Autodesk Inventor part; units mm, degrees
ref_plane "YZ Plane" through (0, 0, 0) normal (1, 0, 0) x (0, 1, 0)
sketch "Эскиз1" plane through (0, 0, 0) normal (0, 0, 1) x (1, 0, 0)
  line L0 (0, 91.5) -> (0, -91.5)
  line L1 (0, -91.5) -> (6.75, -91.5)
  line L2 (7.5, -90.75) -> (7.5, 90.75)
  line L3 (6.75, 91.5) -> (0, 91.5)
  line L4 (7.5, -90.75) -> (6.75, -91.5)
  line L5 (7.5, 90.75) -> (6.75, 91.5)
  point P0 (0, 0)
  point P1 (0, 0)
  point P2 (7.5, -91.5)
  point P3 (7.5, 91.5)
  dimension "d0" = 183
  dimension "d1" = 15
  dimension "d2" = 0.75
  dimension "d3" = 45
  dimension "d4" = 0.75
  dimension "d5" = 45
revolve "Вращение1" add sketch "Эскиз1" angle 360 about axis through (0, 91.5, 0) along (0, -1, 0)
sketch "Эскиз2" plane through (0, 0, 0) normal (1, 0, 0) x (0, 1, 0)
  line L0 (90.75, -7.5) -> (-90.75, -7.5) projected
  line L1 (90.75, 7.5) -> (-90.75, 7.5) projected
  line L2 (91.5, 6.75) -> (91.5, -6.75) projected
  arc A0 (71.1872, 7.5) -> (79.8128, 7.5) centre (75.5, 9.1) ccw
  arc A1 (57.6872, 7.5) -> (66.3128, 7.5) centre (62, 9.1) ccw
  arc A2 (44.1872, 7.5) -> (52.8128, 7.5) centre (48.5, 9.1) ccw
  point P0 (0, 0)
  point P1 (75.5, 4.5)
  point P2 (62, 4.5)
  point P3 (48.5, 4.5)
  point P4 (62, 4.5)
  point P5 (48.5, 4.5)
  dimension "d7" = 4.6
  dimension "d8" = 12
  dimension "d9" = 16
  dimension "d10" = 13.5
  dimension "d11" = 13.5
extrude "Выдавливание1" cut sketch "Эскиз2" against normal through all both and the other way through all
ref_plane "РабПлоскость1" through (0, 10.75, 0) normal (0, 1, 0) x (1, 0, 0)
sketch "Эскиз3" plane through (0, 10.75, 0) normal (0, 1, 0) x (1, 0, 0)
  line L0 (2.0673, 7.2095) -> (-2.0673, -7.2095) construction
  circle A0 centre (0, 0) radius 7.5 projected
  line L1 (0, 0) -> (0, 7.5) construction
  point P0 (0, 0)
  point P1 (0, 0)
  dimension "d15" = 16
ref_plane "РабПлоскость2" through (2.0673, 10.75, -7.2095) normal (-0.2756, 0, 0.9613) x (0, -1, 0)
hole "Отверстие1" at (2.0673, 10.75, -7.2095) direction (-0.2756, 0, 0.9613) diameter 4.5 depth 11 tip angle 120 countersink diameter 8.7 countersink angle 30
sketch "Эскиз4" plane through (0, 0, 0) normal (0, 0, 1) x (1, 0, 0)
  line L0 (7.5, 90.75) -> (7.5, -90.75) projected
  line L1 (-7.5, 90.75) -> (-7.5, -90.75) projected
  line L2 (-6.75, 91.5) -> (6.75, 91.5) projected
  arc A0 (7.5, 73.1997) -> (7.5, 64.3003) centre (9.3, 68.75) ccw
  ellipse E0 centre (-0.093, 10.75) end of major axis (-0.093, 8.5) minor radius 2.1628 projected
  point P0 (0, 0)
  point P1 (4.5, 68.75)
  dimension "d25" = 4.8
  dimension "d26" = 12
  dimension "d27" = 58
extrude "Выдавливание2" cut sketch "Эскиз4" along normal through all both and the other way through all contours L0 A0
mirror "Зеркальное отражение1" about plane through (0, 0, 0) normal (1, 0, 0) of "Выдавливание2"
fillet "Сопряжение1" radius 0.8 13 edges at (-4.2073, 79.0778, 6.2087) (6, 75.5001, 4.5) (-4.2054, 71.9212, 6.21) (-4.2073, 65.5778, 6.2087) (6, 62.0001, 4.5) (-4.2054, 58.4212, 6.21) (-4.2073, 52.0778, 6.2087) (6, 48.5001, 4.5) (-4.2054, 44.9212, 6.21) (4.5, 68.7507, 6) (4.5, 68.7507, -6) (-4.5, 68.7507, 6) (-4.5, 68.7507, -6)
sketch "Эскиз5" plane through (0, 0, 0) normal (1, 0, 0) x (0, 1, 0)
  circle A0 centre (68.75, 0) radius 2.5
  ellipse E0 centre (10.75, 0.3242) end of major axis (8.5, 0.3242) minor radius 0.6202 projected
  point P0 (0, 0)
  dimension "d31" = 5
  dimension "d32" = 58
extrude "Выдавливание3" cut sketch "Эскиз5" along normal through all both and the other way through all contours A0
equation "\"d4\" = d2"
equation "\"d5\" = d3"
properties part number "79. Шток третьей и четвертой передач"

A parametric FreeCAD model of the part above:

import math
import FreeCAD as App
import Part
import Sketcher

V = App.Vector


def edges_at(feature, points):
    """Names of the edges that pass closest to the given points."""
    edges = feature.Shape.Edges
    near = lambda p: min(range(len(edges)), key=lambda i: edges[i].distToShape(Part.Vertex(*p))[0])
    return sorted({f"Edge{near(p) + 1}" for p in points})

doc = App.newDocument("Part")
body = doc.addObject("PartDesign::Body", "Body")

sketch1 = body.newObject("Sketcher::SketchObject", "Sketch")
sketch1.AttachmentSupport = (doc.getObject("XY_Plane"), [""])
sketch1.MapMode = "FlatFace"
sketch1.addGeometry(Part.LineSegment(V(6.75, 91.5, 0), V(0, 91.5, 0)), False)
sketch1.addGeometry(Part.LineSegment(V(0, 91.5, 0), V(0, -91.5, 0)), False)
sketch1.addGeometry(Part.LineSegment(V(0, -91.5, 0), V(6.75, -91.5, 0)), False)
sketch1.addGeometry(Part.LineSegment(V(6.75, -91.5, 0), V(7.5, -90.75, 0)), False)
sketch1.addGeometry(Part.LineSegment(V(7.5, -90.75, 0), V(7.5, 90.75, 0)), False)
sketch1.addGeometry(Part.LineSegment(V(7.5, 90.75, 0), V(6.75, 91.5, 0)), False)
sketch1.addConstraint(Sketcher.Constraint("Coincident", 0, 2, 1, 1))
sketch1.addConstraint(Sketcher.Constraint("Coincident", 1, 2, 2, 1))
sketch1.addConstraint(Sketcher.Constraint("Coincident", 2, 2, 3, 1))
sketch1.addConstraint(Sketcher.Constraint("Coincident", 3, 2, 4, 1))
sketch1.addConstraint(Sketcher.Constraint("Coincident", 4, 2, 5, 1))
sketch1.addConstraint(Sketcher.Constraint("Coincident", 5, 2, 0, 1))
sketch1.addConstraint(Sketcher.Constraint("Horizontal", 0))
sketch1.addConstraint(Sketcher.Constraint("Vertical", 1))
sketch1.addConstraint(Sketcher.Constraint("Horizontal", 2))
sketch1.addConstraint(Sketcher.Constraint("Vertical", 4))
sketch1.addConstraint(Sketcher.Constraint("Symmetric", 0, 2, 1, 2, -1, 1))
sketch1.addConstraint(Sketcher.Constraint("Perpendicular", 3, 5))
sketch1.addConstraint(Sketcher.Constraint("Vertical", 2, 2, 5, 2))
sketch1.addConstraint(Sketcher.Constraint("Equal", 3, 5))
sketch1.addConstraint(Sketcher.Constraint("DistanceY", 1, 2, 1, 1, 183.0))
sketch1.addConstraint(Sketcher.Constraint("DistanceX", 2, 2, 3, 2, 0.75))
sketch1.addConstraint(Sketcher.Constraint("DistanceX", 0, 2, 0, 1, 6.75))
revolution = body.newObject("PartDesign::Revolution", "Revolution")
revolution.Profile = sketch1
revolution.ReferenceAxis = (sketch1, ["V_Axis"])
revolution.Angle = 360

sketch2 = body.newObject("Sketcher::SketchObject", "Sketch001")
sketch2.AttachmentSupport = (doc.getObject("YZ_Plane"), [""])
sketch2.MapMode = "FlatFace"
sketch2.addGeometry(Part.ArcOfCircle(Part.Circle(V(75.5, 9.1, 0), V(0, 0, 1), 4.600027), math.radians(-159.645716), math.radians(-20.354284)), False)
sketch2.addGeometry(Part.LineSegment(V(79.8128, 7.5, 0), V(71.1872, 7.5, 0)), False)
sketch2.addGeometry(Part.ArcOfCircle(Part.Circle(V(48.5, 9.1, 0), V(0, 0, 1), 4.600027), math.radians(-159.645716), math.radians(-20.354284)), False)
sketch2.addGeometry(Part.LineSegment(V(52.8128, 7.5, 0), V(44.1872, 7.5, 0)), False)
sketch2.addGeometry(Part.ArcOfCircle(Part.Circle(V(62, 9.1, 0), V(0, 0, 1), 4.600027), math.radians(-159.645716), math.radians(-20.354284)), False)
sketch2.addGeometry(Part.LineSegment(V(66.3128, 7.5, 0), V(57.6872, 7.5, 0)), False)
sketch2.addConstraint(Sketcher.Constraint("Coincident", 0, 1, 1, 2))
sketch2.addConstraint(Sketcher.Constraint("Coincident", 1, 1, 0, 2))
sketch2.addConstraint(Sketcher.Constraint("Coincident", 2, 1, 3, 2))
sketch2.addConstraint(Sketcher.Constraint("Coincident", 3, 1, 2, 2))
sketch2.addConstraint(Sketcher.Constraint("Coincident", 4, 1, 5, 2))
sketch2.addConstraint(Sketcher.Constraint("Coincident", 5, 1, 4, 2))
sketch2.addConstraint(Sketcher.Constraint("Horizontal", 1))
sketch2.addConstraint(Sketcher.Constraint("Horizontal", 3))
sketch2.addConstraint(Sketcher.Constraint("Horizontal", 5))
sketch2.addConstraint(Sketcher.Constraint("Equal", 0, 2))
sketch2.addConstraint(Sketcher.Constraint("Equal", 2, 4))
sketch2.addConstraint(Sketcher.Constraint("Horizontal", 0, 3, 2, 3))
sketch2.addConstraint(Sketcher.Constraint("Horizontal", 2, 3, 4, 3))
sketch2.addConstraint(Sketcher.Constraint("Horizontal", 1, 1, 2, 1))
sketch2.addConstraint(Sketcher.Constraint("Horizontal", 3, 1, 4, 1))
sketch2.addConstraint(Sketcher.Constraint("Radius", 0, 4.6))
sketch2.addConstraint(Sketcher.Constraint("DistanceX", 4, 3, 0, 3, 13.5))
sketch2.addConstraint(Sketcher.Constraint("DistanceX", 2, 3, 4, 3, 13.5))
sketch2.addConstraint(Sketcher.Constraint("DistanceX", -1, 1, 4, 3, 62.0))
sketch2.addConstraint(Sketcher.Constraint("DistanceY", -1, 1, 0, 3, 9.1))
sketch2.addConstraint(Sketcher.Constraint("DistanceY", -1, 1, 0, 1, 7.5))
pocket1 = body.newObject("PartDesign::Pocket", "Pocket")
pocket1.Profile = sketch2
pocket1.Type = "ThroughAll"
pocket1.Midplane = True

sketch3 = body.newObject("Sketcher::SketchObject", "Sketch002")
sketch3.Placement = App.Placement(V(2.067292, 0, -7.209502), App.Rotation(V(-0.961261696, 0, -0.275637356), V(0, 1, 0), V(0.275637356, 0, -0.961261696), "ZXY"))
sketch3.addGeometry(Part.Circle(V(-0.000009, 10.75, 0), V(0, 0, 1), 2.25), False)
sketch3.addConstraint(Sketcher.Constraint("PointOnObject", 0, 3, -2))
sketch3.addConstraint(Sketcher.Constraint("Diameter", 0, 4.5))
sketch3.addConstraint(Sketcher.Constraint("DistanceY", -1, 1, 0, 3, 10.75))
doc.recompute()
hole = body.newObject("PartDesign::Hole", "Hole")
hole.Profile = sketch3
hole.ThreadType = "None"
hole.Diameter = 4.5
hole.DepthType = "Dimension"
hole.Depth = 11
hole.DrillPoint = "Angled"
hole.DrillPointAngle = 120
hole.HoleCutType = "Countersink"
hole.HoleCutDiameter = 8.7
hole.HoleCutCountersinkAngle = 30

sketch4 = body.newObject("Sketcher::SketchObject", "Sketch003")
sketch4.AttachmentSupport = (doc.getObject("XY_Plane"), [""])
sketch4.MapMode = "FlatFace"
sketch4.addGeometry(Part.LineSegment(V(7.5, 64.3003, 0), V(7.5, 73.1997, 0)), False)
sketch4.addGeometry(Part.ArcOfCircle(Part.Circle(V(9.3, 68.75, 0), V(0, 0, 1), 4.799982), math.radians(112.024398), math.radians(247.975602)), False)
sketch4.addConstraint(Sketcher.Constraint("Coincident", 0, 1, 1, 2))
sketch4.addConstraint(Sketcher.Constraint("Coincident", 1, 1, 0, 2))
sketch4.addConstraint(Sketcher.Constraint("Vertical", 0))
sketch4.addConstraint(Sketcher.Constraint("Radius", 1, 4.8))
sketch4.addConstraint(Sketcher.Constraint("DistanceX", -1, 1, 1, 3, 9.3))
sketch4.addConstraint(Sketcher.Constraint("DistanceX", -1, 1, 0, 1, 7.5))
sketch4.addConstraint(Sketcher.Constraint("DistanceY", -1, 1, 1, 3, 68.75))
pocket2 = body.newObject("PartDesign::Pocket", "Pocket001")
pocket2.Profile = sketch4
pocket2.Type = "ThroughAll"
pocket2.Midplane = True
doc.recompute()

mirrored = body.newObject("PartDesign::Mirrored", "Mirrored")
mirrored.Originals = [pocket2]
mirrored.MirrorPlane = (doc.getObject("YZ_Plane"), [""])
body.Tip = mirrored
doc.recompute()

fillet = body.newObject("PartDesign::Fillet", "Fillet")
fillet.Base = (mirrored, edges_at(mirrored, [
    (-4.207, 79.078, 6.209),
    (6, 75.5, 4.5),
    (-4.205, 71.921, 6.21),
    (-4.207, 65.578, 6.209),
    (6, 62, 4.5),
    (-4.205, 58.421, 6.21),
    (-4.207, 52.078, 6.209),
    (6, 48.5, 4.5),
    (-4.205, 44.921, 6.21),
    (4.5, 68.751, 6),
    (4.5, 68.751, -6),
    (-4.5, 68.751, 6),
    (-4.5, 68.751, -6),
]))
fillet.Radius = 0.8

sketch5 = body.newObject("Sketcher::SketchObject", "Sketch004")
sketch5.AttachmentSupport = (doc.getObject("YZ_Plane"), [""])
sketch5.MapMode = "FlatFace"
sketch5.addGeometry(Part.Circle(V(68.75, 0, 0), V(0, 0, 1), 2.5), False)
sketch5.addConstraint(Sketcher.Constraint("PointOnObject", 0, 3, -1))
sketch5.addConstraint(Sketcher.Constraint("Diameter", 0, 5.0))
sketch5.addConstraint(Sketcher.Constraint("DistanceX", -1, 1, 0, 3, 68.75))
pocket3 = body.newObject("PartDesign::Pocket", "Pocket002")
pocket3.Profile = sketch5
pocket3.Type = "ThroughAll"
pocket3.Midplane = True

doc.recompute()
